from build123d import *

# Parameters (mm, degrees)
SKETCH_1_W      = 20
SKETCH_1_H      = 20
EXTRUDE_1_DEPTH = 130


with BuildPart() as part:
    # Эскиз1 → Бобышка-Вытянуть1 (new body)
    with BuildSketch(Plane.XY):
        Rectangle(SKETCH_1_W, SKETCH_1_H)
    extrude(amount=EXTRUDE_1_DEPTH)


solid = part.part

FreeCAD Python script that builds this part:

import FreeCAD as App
import Part
import Sketcher
Q = App.Units.Quantity


def add_polygon(sketch, points):
    """Adds a closed chain of lines whose ends are joined by coincident constraints."""
    first, n = sketch.GeometryCount, len(points)
    for a, b in zip(points, points[1:] + points[:1]):
        sketch.addGeometry(Part.LineSegment(App.Vector(*a, 0), App.Vector(*b, 0)), False)
    for i in range(n):
        sketch.addConstraint(Sketcher.Constraint("Coincident", first + i, 2, first + (i + 1) % n, 1))

doc = App.newDocument("Part")
params = doc.addObject("Spreadsheet::Sheet", "Params")
for row, (alias, value) in enumerate([
    ("sketch1_width", "20 mm"),
    ("pad1_length", "130 mm"),
], start=1):
    params.set(f"A{row}", alias)
    params.set(f"B{row}", "=" + value)
    params.setAlias(f"B{row}", alias)

body = doc.addObject("PartDesign::Body", "Body")

# Sketch on XY plane
sketch1 = body.newObject("Sketcher::SketchObject", "Sketch")
sketch1.AttachmentSupport = (doc.getObject("XY_Plane"), [""])
sketch1.MapMode = "FlatFace"
add_polygon(sketch1, [(-10, 10), (-10, -10), (10, -10), (10, 10)])  # lines 0-3
sketch1.addConstraint(Sketcher.Constraint("Vertical", 0))
sketch1.addConstraint(Sketcher.Constraint("Horizontal", 1))
sketch1.addConstraint(Sketcher.Constraint("Vertical", 2))
sketch1.addConstraint(Sketcher.Constraint("Horizontal", 3))
sketch1.addConstraint(Sketcher.Constraint("Symmetric", 0, 2, 2, 2, -1, 1))
sketch1.addConstraint(Sketcher.Constraint("Equal", 3, 0))
sketch1.addConstraint(Sketcher.Constraint("DistanceX", 1, 1, 1, 2, Q("20 mm")))
sketch1.setExpression("Constraints[10]", "Params.sketch1_width")
pad1 = body.newObject("PartDesign::Pad", "Pad")
pad1.Profile = sketch1
pad1.setExpression("Length", "Params.pad1_length")

doc.recompute()
